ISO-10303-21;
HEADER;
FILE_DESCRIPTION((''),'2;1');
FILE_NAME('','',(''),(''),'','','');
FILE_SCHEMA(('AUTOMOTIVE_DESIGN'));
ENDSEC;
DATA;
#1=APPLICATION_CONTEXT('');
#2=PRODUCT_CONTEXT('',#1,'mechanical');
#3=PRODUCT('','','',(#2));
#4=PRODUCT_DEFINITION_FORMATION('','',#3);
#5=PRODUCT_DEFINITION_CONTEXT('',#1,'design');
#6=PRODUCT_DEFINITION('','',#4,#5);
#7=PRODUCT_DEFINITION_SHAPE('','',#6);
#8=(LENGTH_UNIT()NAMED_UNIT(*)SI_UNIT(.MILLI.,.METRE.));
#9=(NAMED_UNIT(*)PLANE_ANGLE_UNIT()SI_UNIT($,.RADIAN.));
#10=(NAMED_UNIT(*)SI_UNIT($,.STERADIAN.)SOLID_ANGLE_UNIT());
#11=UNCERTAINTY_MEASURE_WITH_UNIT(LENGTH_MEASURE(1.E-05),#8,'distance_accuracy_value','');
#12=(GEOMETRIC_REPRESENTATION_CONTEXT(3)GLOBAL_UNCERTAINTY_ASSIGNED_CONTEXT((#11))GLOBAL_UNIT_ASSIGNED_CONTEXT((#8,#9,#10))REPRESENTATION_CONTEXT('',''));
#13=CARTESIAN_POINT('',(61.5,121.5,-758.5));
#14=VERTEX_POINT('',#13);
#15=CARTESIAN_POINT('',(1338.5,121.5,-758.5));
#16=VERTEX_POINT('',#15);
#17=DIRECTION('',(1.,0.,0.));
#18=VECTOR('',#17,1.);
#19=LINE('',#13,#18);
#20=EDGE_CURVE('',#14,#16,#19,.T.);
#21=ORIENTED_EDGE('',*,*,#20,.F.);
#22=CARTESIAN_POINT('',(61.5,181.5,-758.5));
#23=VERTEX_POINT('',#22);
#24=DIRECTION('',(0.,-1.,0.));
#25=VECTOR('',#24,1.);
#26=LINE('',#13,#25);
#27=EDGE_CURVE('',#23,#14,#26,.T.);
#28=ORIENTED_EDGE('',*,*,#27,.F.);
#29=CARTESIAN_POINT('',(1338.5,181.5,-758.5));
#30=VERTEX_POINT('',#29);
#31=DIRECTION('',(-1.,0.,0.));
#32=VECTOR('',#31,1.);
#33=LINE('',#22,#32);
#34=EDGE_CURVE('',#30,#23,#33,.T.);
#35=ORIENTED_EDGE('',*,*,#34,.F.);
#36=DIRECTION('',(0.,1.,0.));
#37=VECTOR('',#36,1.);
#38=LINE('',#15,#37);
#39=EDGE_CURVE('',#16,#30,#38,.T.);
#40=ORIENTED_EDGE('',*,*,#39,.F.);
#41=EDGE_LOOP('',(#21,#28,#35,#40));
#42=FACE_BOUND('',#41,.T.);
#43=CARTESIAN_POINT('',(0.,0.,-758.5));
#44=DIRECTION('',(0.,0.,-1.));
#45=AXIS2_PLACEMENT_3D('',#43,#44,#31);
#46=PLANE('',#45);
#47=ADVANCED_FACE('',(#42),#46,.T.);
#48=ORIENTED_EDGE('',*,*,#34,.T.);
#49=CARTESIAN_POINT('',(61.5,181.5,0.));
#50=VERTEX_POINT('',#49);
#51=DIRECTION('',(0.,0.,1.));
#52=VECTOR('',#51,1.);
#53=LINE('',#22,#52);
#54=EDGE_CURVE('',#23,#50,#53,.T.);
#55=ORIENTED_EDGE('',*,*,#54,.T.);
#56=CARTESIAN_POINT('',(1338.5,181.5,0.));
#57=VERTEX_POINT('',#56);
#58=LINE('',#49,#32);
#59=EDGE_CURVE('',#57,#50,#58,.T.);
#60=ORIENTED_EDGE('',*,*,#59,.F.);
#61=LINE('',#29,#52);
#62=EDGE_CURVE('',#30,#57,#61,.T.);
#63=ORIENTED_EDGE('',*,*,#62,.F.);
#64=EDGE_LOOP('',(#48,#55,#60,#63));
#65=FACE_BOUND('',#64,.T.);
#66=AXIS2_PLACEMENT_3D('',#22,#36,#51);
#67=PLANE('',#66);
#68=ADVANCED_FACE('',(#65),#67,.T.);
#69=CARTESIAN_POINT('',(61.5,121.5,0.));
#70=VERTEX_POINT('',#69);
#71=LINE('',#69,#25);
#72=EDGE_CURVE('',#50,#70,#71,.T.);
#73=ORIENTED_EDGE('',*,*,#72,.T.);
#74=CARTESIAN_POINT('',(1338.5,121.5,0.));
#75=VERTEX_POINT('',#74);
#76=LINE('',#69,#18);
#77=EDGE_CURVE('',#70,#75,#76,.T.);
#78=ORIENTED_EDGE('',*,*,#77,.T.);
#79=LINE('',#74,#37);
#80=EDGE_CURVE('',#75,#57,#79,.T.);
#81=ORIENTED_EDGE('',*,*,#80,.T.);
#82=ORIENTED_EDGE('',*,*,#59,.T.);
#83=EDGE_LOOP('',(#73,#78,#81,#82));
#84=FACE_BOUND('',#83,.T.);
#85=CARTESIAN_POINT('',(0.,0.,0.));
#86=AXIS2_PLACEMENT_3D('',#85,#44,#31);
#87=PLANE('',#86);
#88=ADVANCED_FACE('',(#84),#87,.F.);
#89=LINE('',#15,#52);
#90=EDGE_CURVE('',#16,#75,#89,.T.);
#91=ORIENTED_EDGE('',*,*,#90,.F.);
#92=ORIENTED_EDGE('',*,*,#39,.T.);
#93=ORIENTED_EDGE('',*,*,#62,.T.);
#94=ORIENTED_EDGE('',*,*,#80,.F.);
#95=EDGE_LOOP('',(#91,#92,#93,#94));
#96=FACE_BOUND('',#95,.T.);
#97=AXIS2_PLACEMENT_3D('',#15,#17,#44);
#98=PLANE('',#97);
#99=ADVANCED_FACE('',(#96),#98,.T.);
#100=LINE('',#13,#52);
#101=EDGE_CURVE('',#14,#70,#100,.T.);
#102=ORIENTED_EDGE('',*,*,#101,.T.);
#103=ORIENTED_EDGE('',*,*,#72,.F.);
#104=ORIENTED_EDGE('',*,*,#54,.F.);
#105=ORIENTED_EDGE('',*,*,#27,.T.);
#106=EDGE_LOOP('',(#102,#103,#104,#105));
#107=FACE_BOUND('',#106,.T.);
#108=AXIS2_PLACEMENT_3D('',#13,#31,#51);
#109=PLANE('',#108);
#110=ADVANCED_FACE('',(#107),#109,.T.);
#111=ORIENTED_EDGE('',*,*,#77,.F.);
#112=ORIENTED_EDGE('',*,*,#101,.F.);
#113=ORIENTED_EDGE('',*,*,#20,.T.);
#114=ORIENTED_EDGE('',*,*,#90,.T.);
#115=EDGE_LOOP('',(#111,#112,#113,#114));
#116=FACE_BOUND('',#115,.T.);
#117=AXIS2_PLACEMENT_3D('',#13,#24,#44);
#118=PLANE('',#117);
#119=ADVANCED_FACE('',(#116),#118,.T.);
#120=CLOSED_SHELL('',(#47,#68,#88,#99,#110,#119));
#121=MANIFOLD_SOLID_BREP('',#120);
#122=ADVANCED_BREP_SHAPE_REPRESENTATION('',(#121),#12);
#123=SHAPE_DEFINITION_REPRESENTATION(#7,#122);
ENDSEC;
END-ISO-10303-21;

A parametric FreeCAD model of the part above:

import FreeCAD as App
import Part
import Sketcher
from FreeCAD import Vector


def add_polygon(sketch, points):
    """Adds a closed chain of lines whose ends are joined by coincident constraints."""
    first, n = sketch.GeometryCount, len(points)
    for a, b in zip(points, points[1:] + points[:1]):
        sketch.addGeometry(Part.LineSegment(App.Vector(*a, 0), App.Vector(*b, 0)), False)
    for i in range(n):
        sketch.addConstraint(Sketcher.Constraint("Coincident", first + i, 2, first + (i + 1) % n, 1))

doc = App.newDocument("Part")
params = doc.addObject("Spreadsheet::Sheet", "Params")
for row, (alias, value) in enumerate([
    ("sketch1_width", "1277 mm"),
    ("sketch1_height", "60 mm"),
    ("pad1_length", "758.5 mm"),
], start=1):
    params.set(f"A{row}", alias)
    params.set(f"B{row}", "=" + value)
    params.setAlias(f"B{row}", alias)

body = doc.addObject("PartDesign::Body", "Body")

# Sketch on XY plane
sketch1 = body.newObject("Sketcher::SketchObject", "Sketch")
sketch1.AttachmentSupport = (doc.getObject("XY_Plane"), [""])
sketch1.MapMode = "FlatFace"
add_polygon(sketch1, [(61.5, 181.5), (61.5, 121.5), (1338.5, 121.5), (1338.5, 181.5)])  # lines 0-3
sketch1.addConstraint([
    Sketcher.Constraint("Vertical", 0),
    Sketcher.Constraint("Horizontal", 1),
    Sketcher.Constraint("Vertical", 2),
    Sketcher.Constraint("Horizontal", 3),
    Sketcher.Constraint("DistanceX", 1, 1, 1, 2, 1277.0),
    Sketcher.Constraint("DistanceY", 0, 2, 0, 1, 60.0),
    Sketcher.Constraint("DistanceX", -1, 1, 0, 2, 61.5),
    Sketcher.Constraint("DistanceY", -1, 1, 0, 2, 121.5),
])
sketch1.setExpression("Constraints[8]", "Params.sketch1_width")
sketch1.setExpression("Constraints[9]", "Params.sketch1_height")
pad1 = body.newObject("PartDesign::Pad", "Pad")
pad1.Profile = sketch1
pad1.setExpression("Length", "Params.pad1_length")
pad1.Reversed = True

doc.recompute()
